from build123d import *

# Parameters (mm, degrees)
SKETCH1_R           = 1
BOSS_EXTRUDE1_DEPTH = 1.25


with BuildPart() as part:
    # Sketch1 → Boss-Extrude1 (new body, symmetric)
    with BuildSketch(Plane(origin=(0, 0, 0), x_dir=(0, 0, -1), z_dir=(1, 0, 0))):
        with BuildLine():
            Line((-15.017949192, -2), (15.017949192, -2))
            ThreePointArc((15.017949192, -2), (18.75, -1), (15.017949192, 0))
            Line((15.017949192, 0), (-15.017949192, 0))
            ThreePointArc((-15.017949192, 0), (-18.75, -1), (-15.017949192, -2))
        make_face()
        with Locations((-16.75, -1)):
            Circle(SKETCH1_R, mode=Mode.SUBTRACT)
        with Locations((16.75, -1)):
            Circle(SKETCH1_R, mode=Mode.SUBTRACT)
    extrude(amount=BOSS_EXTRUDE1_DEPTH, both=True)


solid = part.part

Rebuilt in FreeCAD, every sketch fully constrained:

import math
import FreeCAD as App
import Part
import Sketcher

V = App.Vector

doc = App.newDocument("Part")
body = doc.addObject("PartDesign::Body", "Body")

# Sketch on YZ plane
sketch1 = body.newObject("Sketcher::SketchObject", "Sketch")
sketch1.AttachmentSupport = (doc.getObject("YZ_Plane"), [""])
sketch1.MapMode = "FlatFace"
sketch1.addGeometry(Part.LineSegment(V(-2, 15.017949, 0), V(-2, -15.017949, 0)), False)
sketch1.addGeometry(Part.ArcOfCircle(Part.Circle(V(-1, -16.75, 0), V(0, 0, 1), 2), math.radians(120), math.radians(420)), False)
sketch1.addGeometry(Part.LineSegment(V(0, -15.017949, 0), V(0, 15.017949, 0)), False)
sketch1.addGeometry(Part.ArcOfCircle(Part.Circle(V(-1, 16.75, 0), V(0, 0, 1), 2), math.radians(-60), math.radians(240)), False)
sketch1.addGeometry(Part.Circle(V(-1, 16.75, 0), V(0, 0, 1), 1), False)
sketch1.addGeometry(Part.Circle(V(-1, -16.75, 0), V(0, 0, 1), 1), False)
sketch1.addConstraint(Sketcher.Constraint("Coincident", 0, 2, 1, 1))
sketch1.addConstraint(Sketcher.Constraint("Coincident", 1, 2, 2, 1))
sketch1.addConstraint(Sketcher.Constraint("Coincident", 2, 2, 3, 1))
sketch1.addConstraint(Sketcher.Constraint("Coincident", 3, 2, 0, 1))
sketch1.addConstraint(Sketcher.Constraint("Vertical", 0))
sketch1.addConstraint(Sketcher.Constraint("Vertical", 2))
sketch1.addConstraint(Sketcher.Constraint("Coincident", 4, 3, 3, 3))
sketch1.addConstraint(Sketcher.Constraint("Coincident", 5, 3, 1, 3))
sketch1.addConstraint(Sketcher.Constraint("Equal", 1, 3))
sketch1.addConstraint(Sketcher.Constraint("Equal", 4, 5))
sketch1.addConstraint(Sketcher.Constraint("Symmetric", 1, 2, 2, 2, -1, 1))
sketch1.addConstraint(Sketcher.Constraint("Horizontal", 0, 2, 1, 2))
sketch1.addConstraint(Sketcher.Constraint("Horizontal", 2, 2, 3, 2))
sketch1.addConstraint(Sketcher.Constraint("Diameter", 4, 2.0))
sketch1.addConstraint(Sketcher.Constraint("Radius", 1, 2.0))
sketch1.addConstraint(Sketcher.Constraint("DistanceX", 1, 3, -1, 1, 1.0))
sketch1.addConstraint(Sketcher.Constraint("DistanceY", 1, 3, 3, 3, 33.5))
pad1 = body.newObject("PartDesign::Pad", "Pad")
pad1.Profile = sketch1
pad1.Length = 2.5
pad1.Midplane = True

doc.recompute()
